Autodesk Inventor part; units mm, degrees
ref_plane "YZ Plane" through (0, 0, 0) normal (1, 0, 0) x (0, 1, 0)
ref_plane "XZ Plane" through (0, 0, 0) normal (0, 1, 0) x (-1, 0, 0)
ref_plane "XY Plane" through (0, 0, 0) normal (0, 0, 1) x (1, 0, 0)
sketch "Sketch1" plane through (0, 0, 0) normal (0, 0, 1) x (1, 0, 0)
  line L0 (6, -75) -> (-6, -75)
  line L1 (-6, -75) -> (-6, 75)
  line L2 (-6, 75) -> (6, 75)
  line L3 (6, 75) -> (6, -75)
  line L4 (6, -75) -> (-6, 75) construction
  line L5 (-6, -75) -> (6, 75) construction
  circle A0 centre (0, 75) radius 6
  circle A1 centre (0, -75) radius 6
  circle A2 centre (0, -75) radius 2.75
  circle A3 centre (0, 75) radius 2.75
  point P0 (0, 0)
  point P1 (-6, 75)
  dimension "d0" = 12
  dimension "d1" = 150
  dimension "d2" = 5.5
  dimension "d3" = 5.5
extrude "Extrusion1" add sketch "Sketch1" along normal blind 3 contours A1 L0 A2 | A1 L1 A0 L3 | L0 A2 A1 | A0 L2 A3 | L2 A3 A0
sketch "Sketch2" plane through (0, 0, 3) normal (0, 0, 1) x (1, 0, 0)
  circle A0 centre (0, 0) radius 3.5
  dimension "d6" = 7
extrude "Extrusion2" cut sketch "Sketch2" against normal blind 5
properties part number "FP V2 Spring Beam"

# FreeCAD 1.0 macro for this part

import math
import FreeCAD as App
import Part
import Sketcher
from FreeCAD import Vector

doc = App.newDocument("Part")
body = doc.addObject("PartDesign::Body", "Body")

# Sketch on XY plane
sketch1 = body.newObject("Sketcher::SketchObject", "Sketch")
sketch1.AttachmentSupport = (doc.getObject("XY_Plane"), [""])
sketch1.MapMode = "FlatFace"
sketch1.addGeometry([
    Part.ArcOfCircle(Part.Circle(Vector(0, -75, 0), Vector(0, 0, 1), 6), math.radians(180), math.radians(360)),  # 0
    Part.LineSegment(Vector(6, -75, 0), Vector(6, 75, 0)),  # 1
    Part.ArcOfCircle(Part.Circle(Vector(0, 75, 0), Vector(0, 0, 1), 6), math.radians(0), math.radians(180)),  # 2
    Part.LineSegment(Vector(-6, 75, 0), Vector(-6, -75, 0)),  # 3
    Part.Circle(Vector(0, -75, 0), Vector(0, 0, 1), 2.8),  # 4
    Part.Circle(Vector(0, 75, 0), Vector(0, 0, 1), 2.8),  # 5
], False)
sketch1.addConstraint([
    Sketcher.Constraint("Tangent", 0, 2, 1, 1),
    Sketcher.Constraint("Tangent", 1, 2, 2, 1),
    Sketcher.Constraint("Tangent", 2, 2, 3, 1),
    Sketcher.Constraint("Tangent", 3, 2, 0, 1),
    Sketcher.Constraint("Vertical", 1),
    Sketcher.Constraint("Vertical", 3),
    Sketcher.Constraint("Coincident", 4, 3, 0, 3),
    Sketcher.Constraint("Coincident", 5, 3, 2, 3),
    Sketcher.Constraint("Equal", 4, 5),
    Sketcher.Constraint("Symmetric", 0, 3, 2, 3, -1, 1),
    Sketcher.Constraint("Radius", 0, 6.0),
    Sketcher.Constraint("Diameter", 4, 5.5),
    Sketcher.Constraint("DistanceY", 1, 1, 1, 2, 150.0),
])
pad1 = body.newObject("PartDesign::Pad", "Pad")
pad1.Profile = sketch1
pad1.Length = 3

# Sketch on XY plane
sketch2 = body.newObject("Sketcher::SketchObject", "Sketch001")
sketch2.AttachmentSupport = (doc.getObject("XY_Plane"), [""])
sketch2.MapMode = "FlatFace"
sketch2.AttachmentOffset = App.Placement(Vector(0, 0, 3), App.Rotation())
sketch2.addGeometry(Part.Circle(Vector(0, 0, 0), Vector(0, 0, 1), 3.5), False)
sketch2.addConstraint([
    Sketcher.Constraint("Coincident", 0, 3, -1, 1),
    Sketcher.Constraint("Diameter", 0, 7.0),
])
pocket1 = body.newObject("PartDesign::Pocket", "Pocket")
pocket1.Profile = sketch2
pocket1.Length = 5

doc.recompute()
